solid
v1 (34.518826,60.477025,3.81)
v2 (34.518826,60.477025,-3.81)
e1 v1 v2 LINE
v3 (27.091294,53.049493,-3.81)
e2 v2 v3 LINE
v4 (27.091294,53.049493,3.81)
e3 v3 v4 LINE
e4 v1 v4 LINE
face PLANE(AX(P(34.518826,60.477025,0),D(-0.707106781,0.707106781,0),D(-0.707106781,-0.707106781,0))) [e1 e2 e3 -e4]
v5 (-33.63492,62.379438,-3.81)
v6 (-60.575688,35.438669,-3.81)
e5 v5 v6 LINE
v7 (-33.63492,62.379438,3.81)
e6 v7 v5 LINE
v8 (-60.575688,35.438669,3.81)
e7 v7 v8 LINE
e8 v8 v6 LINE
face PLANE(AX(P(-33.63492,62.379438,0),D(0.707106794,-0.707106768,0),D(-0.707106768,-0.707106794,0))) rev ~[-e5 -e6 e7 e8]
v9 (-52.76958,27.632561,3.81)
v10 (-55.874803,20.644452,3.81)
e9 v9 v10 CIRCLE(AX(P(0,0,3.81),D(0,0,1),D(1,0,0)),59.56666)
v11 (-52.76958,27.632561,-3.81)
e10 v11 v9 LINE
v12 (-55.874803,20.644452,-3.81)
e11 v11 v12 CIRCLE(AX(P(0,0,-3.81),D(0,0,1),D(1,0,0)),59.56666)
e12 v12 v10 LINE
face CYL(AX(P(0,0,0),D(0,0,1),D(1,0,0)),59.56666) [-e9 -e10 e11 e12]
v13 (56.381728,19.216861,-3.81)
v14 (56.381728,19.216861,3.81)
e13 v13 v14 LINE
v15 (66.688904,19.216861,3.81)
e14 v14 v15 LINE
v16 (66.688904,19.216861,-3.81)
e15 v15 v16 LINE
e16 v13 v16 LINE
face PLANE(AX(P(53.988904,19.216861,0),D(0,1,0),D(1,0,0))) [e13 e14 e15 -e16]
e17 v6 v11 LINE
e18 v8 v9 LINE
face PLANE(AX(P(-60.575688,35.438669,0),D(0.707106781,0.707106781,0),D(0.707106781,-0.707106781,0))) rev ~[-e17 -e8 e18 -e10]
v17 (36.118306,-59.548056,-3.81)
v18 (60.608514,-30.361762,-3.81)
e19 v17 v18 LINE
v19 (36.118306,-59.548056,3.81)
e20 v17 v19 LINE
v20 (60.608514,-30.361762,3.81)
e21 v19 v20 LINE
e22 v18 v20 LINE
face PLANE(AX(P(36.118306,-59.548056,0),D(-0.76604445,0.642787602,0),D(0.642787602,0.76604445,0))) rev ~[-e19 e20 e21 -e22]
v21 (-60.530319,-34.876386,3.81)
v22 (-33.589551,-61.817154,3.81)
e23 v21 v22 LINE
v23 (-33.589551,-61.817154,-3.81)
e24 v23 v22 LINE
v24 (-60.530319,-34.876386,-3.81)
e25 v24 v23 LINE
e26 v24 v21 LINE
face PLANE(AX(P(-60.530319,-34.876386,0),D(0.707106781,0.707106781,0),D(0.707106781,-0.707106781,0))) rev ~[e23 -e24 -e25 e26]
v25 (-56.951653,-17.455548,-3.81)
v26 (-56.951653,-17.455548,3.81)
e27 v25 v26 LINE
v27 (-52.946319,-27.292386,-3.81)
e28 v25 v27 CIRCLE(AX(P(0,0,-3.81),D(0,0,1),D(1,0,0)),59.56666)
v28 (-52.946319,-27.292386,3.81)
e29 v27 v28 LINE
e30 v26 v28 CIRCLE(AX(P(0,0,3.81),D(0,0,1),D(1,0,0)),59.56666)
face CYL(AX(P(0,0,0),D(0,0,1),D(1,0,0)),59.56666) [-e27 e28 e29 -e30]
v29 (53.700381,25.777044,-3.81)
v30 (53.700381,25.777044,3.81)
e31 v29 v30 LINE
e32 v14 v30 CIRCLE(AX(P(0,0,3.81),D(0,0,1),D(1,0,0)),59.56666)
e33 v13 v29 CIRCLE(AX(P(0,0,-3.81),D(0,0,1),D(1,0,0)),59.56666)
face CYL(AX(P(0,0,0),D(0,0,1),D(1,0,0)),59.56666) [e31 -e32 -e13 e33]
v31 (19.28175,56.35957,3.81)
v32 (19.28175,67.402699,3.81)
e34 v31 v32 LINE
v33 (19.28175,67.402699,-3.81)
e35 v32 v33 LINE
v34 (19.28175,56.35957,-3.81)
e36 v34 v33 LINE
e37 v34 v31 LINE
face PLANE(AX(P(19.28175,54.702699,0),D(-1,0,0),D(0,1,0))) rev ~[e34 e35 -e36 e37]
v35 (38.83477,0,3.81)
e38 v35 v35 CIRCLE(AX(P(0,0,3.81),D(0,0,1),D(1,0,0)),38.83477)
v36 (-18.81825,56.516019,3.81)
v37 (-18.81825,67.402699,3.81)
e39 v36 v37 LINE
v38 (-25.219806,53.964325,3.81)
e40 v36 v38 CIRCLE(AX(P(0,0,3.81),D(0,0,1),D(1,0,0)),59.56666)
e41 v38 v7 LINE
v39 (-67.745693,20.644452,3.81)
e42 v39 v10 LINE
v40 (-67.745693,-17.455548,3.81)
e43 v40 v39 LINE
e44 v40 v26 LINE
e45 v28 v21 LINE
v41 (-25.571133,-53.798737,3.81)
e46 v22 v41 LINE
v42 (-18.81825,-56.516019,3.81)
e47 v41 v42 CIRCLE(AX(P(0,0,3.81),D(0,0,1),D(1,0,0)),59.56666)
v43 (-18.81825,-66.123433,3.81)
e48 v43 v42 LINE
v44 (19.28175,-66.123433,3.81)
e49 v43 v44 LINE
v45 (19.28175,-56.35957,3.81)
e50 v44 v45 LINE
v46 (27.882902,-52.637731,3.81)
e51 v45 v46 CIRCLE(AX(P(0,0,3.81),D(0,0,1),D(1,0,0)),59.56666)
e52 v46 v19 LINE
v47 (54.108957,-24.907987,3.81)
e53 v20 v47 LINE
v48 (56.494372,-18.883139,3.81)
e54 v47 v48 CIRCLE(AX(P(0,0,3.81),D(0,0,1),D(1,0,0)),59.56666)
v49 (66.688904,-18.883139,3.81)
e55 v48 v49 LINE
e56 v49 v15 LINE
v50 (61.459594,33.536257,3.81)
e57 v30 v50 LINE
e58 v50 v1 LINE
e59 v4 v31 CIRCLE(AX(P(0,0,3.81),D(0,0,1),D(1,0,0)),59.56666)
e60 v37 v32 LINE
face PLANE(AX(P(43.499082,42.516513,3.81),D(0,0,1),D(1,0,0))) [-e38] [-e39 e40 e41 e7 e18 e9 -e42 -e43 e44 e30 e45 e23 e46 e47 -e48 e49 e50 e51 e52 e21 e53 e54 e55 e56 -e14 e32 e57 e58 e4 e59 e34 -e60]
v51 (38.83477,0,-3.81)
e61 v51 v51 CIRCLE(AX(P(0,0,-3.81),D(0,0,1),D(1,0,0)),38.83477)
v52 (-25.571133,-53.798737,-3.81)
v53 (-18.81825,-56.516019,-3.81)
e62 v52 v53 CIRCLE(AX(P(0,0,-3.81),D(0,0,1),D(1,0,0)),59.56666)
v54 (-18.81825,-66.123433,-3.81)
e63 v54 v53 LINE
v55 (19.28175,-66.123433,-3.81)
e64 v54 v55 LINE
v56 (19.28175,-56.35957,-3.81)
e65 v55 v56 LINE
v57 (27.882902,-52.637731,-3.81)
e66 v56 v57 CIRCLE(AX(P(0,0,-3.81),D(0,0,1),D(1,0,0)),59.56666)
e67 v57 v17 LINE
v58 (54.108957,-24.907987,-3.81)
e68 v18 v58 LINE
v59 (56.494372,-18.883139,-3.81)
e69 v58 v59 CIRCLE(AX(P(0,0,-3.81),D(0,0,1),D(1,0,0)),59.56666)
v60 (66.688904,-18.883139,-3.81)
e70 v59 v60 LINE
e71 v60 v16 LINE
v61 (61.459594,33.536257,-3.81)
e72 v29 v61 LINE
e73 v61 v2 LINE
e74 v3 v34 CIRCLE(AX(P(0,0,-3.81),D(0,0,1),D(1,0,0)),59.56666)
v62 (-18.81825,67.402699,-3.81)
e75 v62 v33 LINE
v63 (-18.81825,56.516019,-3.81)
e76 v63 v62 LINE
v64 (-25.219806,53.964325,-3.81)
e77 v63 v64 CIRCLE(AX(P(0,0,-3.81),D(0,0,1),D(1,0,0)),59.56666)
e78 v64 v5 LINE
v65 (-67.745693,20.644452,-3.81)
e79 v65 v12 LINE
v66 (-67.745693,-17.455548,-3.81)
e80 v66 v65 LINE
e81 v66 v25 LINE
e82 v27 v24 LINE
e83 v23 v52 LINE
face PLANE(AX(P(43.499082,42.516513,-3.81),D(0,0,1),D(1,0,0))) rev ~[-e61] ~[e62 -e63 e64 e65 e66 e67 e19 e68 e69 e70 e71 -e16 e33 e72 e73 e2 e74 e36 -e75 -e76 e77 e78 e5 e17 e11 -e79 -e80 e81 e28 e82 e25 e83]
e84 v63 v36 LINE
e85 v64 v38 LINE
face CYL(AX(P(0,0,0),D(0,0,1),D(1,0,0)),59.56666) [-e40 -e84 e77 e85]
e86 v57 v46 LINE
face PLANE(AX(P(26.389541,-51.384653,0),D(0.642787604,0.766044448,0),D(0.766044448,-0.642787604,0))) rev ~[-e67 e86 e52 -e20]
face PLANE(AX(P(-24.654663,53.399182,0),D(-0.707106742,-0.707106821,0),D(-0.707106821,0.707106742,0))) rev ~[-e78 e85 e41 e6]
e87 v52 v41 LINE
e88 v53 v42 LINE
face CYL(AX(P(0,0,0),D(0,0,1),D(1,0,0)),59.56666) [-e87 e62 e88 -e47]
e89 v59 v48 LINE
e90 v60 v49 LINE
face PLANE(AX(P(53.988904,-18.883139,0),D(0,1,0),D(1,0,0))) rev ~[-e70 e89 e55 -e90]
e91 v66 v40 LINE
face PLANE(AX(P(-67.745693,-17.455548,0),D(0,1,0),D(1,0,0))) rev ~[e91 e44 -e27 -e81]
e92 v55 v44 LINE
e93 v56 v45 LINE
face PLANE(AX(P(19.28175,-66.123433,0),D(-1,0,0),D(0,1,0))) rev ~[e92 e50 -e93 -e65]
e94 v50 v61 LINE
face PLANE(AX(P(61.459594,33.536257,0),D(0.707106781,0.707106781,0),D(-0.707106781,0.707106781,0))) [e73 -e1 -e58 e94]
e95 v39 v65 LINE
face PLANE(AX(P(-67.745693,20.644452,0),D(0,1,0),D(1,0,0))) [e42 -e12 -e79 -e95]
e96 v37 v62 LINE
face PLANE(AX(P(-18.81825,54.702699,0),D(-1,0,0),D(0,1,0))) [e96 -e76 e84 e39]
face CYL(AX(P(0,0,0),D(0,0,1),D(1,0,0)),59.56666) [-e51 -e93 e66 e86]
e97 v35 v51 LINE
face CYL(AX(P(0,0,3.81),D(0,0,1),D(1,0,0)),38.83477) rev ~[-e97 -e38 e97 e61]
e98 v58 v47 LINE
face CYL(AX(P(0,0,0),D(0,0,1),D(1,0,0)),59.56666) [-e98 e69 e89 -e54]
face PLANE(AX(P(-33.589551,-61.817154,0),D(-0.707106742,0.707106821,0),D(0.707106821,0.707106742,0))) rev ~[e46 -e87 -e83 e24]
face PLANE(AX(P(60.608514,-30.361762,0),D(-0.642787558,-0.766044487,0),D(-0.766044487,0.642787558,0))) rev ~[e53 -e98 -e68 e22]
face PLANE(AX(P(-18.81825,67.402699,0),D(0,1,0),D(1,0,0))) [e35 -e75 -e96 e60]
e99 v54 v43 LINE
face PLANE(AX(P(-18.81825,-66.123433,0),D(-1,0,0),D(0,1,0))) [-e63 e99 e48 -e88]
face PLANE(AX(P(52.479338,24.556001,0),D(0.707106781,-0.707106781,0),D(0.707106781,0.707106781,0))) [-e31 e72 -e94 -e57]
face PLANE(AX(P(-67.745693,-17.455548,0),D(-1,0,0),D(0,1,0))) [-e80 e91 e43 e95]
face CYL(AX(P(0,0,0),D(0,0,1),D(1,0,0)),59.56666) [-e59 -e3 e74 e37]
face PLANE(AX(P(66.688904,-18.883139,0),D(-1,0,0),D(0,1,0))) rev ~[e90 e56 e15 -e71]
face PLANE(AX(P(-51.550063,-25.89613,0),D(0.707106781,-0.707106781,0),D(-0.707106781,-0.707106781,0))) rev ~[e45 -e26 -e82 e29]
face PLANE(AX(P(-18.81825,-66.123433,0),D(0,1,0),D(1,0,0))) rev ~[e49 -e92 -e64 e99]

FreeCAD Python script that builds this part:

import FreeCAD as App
import Part
import Sketcher

V = App.Vector
Q = App.Units.Quantity


def add_polygon(sketch, points):
    """Adds a closed chain of lines whose ends are joined by coincident constraints."""
    first, n = sketch.GeometryCount, len(points)
    for a, b in zip(points, points[1:] + points[:1]):
        sketch.addGeometry(Part.LineSegment(App.Vector(*a, 0), App.Vector(*b, 0)), False)
    for i in range(n):
        sketch.addConstraint(Sketcher.Constraint("Coincident", first + i, 2, first + (i + 1) % n, 1))

doc = App.newDocument("Part")
body = doc.addObject("PartDesign::Body", "Body")

sketch1 = body.newObject("Sketcher::SketchObject", "Sketch")
sketch1.AttachmentSupport = (doc.getObject("XY_Plane"), [""])
sketch1.MapMode = "FlatFace"
sketch1.addGeometry(Part.Circle(V(0, 0, 0), V(0, 0, 1), 60), False)
sketch1.addConstraint([
    Sketcher.Constraint("Coincident", 0, 3, -1, 1),
    Sketcher.Constraint("Diameter", 0, 119.13332),
])
pad1 = body.newObject("PartDesign::Pad", "Pad")
pad1.Profile = sketch1
pad1.Length = Q("0.3 in")
pad1.Midplane = True

sketch2 = body.newObject("Sketcher::SketchObject", "Sketch001")
sketch2.AttachmentSupport = (doc.getObject("XY_Plane"), [""])
sketch2.MapMode = "FlatFace"
sketch2.AttachmentOffset = App.Placement(V(0, 0, 0.15 * 25.4), App.Rotation())
sketch2.addGeometry(Part.Circle(V(0, 0, 0), V(0, 0, 1), 39), False)
sketch2.addConstraint([
    Sketcher.Constraint("Coincident", 0, 3, -1, 1),
    Sketcher.Constraint("Diameter", 0, 77.66954),
])
pocket1 = body.newObject("PartDesign::Pocket", "Pocket")
pocket1.Profile = sketch2
pocket1.Length = Q("1 in")

sketch3 = body.newObject("Sketcher::SketchObject", "Sketch002")
sketch3.AttachmentSupport = (doc.getObject("XY_Plane"), [""])
sketch3.MapMode = "FlatFace"
add_polygon(sketch3, [(-52, -26), (-61, -35), (-34, -62), (-25, -53)])
add_polygon(sketch3, [(26, -51), (36, -60), (61, -30), (51, -22)])
add_polygon(sketch3, [(54, 19), (54, -19), (67, -19), (67, 19)])
add_polygon(sketch3, [(-19, -53), (-19, -66), (19, -66), (19, -53)])
add_polygon(sketch3, [(-68, 21), (-68, -17), (-55, -17), (-55, 21)])
add_polygon(sketch3, [(-61, 35), (-52, 26), (-25, 53), (-34, 62)])
add_polygon(sketch3, [(-19, 67), (-19, 55), (19, 55), (19, 67)])
add_polygon(sketch3, [(35, 60), (26, 51), (52, 25), (61, 34)])
sketch3.addConstraint([
    Sketcher.Constraint("Vertical", 8),
    Sketcher.Constraint("Horizontal", 9),
    Sketcher.Constraint("Vertical", 10),
    Sketcher.Constraint("Horizontal", 11),
    Sketcher.Constraint("Vertical", 12),
    Sketcher.Constraint("Horizontal", 13),
    Sketcher.Constraint("Vertical", 14),
    Sketcher.Constraint("Horizontal", 15),
    Sketcher.Constraint("Vertical", 16),
    Sketcher.Constraint("Horizontal", 17),
    Sketcher.Constraint("Vertical", 18),
    Sketcher.Constraint("Horizontal", 19),
    Sketcher.Constraint("Vertical", 24),
    Sketcher.Constraint("Horizontal", 25),
    Sketcher.Constraint("Vertical", 26),
    Sketcher.Constraint("Horizontal", 27),
    Sketcher.Constraint("Perpendicular", 0, 1),
    Sketcher.Constraint("Perpendicular", 1, 2),
    Sketcher.Constraint("Perpendicular", 2, 3),
    Sketcher.Constraint("Perpendicular", 4, 5),
    Sketcher.Constraint("Perpendicular", 5, 6),
    Sketcher.Constraint("Perpendicular", 6, 7),
    Sketcher.Constraint("Parallel", 3, 20),
    Sketcher.Constraint("Perpendicular", 20, 21),
    Sketcher.Constraint("Perpendicular", 21, 22),
    Sketcher.Constraint("Perpendicular", 22, 23),
    Sketcher.Constraint("Parallel", 23, 28),
    Sketcher.Constraint("Perpendicular", 28, 29),
    Sketcher.Constraint("Perpendicular", 29, 30),
    Sketcher.Constraint("Perpendicular", 30, 31),
    Sketcher.Constraint("Vertical", 15, 2, 24, 2),
    Sketcher.Constraint("Vertical", 14, 2, 25, 2),
    Sketcher.Constraint("Equal", 11, 17),
    Sketcher.Constraint("Equal", 27, 8),
    Sketcher.Constraint("Equal", 19, 12),
    Sketcher.Constraint("Equal", 10, 16),
    Sketcher.Constraint("Equal", 14, 24),
    Sketcher.Constraint("Equal", 2, 4),
    Sketcher.Constraint("Equal", 3, 5),
    Sketcher.Constraint("Equal", 6, 20),
    Sketcher.Constraint("Equal", 7, 21),
    Sketcher.Constraint("Equal", 22, 28),
    Sketcher.Constraint("Equal", 23, 29),
    Sketcher.Constraint("DistanceX", 9, 1, 9, 2, Q("0.5 in")),
    Sketcher.Constraint("DistanceX", 13, 1, 13, 2, Q("1.5 in")),
    Sketcher.Constraint("Angle", 0, Q("-135 deg")),
    Sketcher.Constraint("Angle", 4, Q("-40 deg")),
    Sketcher.Constraint("Distance", 0, Q("0.5 in")),
    Sketcher.Constraint("Distance", 1, Q("1.5 in")),
    Sketcher.Constraint("DistanceY", -1, 1, 24, 2, 54.702699),
    Sketcher.Constraint("DistanceY", -1, 1, 29, 2, 24.556001),
    Sketcher.Constraint("DistanceX", 2, 2, 4, 2, 60.7276),
    Sketcher.Constraint("DistanceY", 1, 2, 7, 2, 10.432501),
    Sketcher.Constraint("DistanceX", 4, 2, 8, 2, 17.870598),
    Sketcher.Constraint("DistanceX", 1, 2, 12, 2, 14.771301),
    Sketcher.Constraint("DistanceX", 16, 2, 2, 2, 43.136399),
    Sketcher.Constraint("DistanceX", 0, 2, -1, 1, 60.530319),
    Sketcher.Constraint("DistanceY", 3, 2, -1, 1, 25.89613),
    Sketcher.Constraint("DistanceY", 8, 2, -1, 1, 18.883139),
    Sketcher.Constraint("DistanceY", 16, 2, -1, 1, 17.455548),
    Sketcher.Constraint("DistanceX", 22, 2, -1, 1, 33.63492),
    Sketcher.Constraint("DistanceY", -1, 1, 23, 2, 35.438669),
    Sketcher.Constraint("DistanceX", -1, 1, 28, 2, 25.53857),
    Sketcher.Constraint("DistanceY", 12, 2, 1, 2, 4.306279),
])
pad2 = body.newObject("PartDesign::Pad", "Pad001")
pad2.Profile = sketch3
pad2.Length = Q("0.3 in")
pad2.Midplane = True

doc.recompute()
